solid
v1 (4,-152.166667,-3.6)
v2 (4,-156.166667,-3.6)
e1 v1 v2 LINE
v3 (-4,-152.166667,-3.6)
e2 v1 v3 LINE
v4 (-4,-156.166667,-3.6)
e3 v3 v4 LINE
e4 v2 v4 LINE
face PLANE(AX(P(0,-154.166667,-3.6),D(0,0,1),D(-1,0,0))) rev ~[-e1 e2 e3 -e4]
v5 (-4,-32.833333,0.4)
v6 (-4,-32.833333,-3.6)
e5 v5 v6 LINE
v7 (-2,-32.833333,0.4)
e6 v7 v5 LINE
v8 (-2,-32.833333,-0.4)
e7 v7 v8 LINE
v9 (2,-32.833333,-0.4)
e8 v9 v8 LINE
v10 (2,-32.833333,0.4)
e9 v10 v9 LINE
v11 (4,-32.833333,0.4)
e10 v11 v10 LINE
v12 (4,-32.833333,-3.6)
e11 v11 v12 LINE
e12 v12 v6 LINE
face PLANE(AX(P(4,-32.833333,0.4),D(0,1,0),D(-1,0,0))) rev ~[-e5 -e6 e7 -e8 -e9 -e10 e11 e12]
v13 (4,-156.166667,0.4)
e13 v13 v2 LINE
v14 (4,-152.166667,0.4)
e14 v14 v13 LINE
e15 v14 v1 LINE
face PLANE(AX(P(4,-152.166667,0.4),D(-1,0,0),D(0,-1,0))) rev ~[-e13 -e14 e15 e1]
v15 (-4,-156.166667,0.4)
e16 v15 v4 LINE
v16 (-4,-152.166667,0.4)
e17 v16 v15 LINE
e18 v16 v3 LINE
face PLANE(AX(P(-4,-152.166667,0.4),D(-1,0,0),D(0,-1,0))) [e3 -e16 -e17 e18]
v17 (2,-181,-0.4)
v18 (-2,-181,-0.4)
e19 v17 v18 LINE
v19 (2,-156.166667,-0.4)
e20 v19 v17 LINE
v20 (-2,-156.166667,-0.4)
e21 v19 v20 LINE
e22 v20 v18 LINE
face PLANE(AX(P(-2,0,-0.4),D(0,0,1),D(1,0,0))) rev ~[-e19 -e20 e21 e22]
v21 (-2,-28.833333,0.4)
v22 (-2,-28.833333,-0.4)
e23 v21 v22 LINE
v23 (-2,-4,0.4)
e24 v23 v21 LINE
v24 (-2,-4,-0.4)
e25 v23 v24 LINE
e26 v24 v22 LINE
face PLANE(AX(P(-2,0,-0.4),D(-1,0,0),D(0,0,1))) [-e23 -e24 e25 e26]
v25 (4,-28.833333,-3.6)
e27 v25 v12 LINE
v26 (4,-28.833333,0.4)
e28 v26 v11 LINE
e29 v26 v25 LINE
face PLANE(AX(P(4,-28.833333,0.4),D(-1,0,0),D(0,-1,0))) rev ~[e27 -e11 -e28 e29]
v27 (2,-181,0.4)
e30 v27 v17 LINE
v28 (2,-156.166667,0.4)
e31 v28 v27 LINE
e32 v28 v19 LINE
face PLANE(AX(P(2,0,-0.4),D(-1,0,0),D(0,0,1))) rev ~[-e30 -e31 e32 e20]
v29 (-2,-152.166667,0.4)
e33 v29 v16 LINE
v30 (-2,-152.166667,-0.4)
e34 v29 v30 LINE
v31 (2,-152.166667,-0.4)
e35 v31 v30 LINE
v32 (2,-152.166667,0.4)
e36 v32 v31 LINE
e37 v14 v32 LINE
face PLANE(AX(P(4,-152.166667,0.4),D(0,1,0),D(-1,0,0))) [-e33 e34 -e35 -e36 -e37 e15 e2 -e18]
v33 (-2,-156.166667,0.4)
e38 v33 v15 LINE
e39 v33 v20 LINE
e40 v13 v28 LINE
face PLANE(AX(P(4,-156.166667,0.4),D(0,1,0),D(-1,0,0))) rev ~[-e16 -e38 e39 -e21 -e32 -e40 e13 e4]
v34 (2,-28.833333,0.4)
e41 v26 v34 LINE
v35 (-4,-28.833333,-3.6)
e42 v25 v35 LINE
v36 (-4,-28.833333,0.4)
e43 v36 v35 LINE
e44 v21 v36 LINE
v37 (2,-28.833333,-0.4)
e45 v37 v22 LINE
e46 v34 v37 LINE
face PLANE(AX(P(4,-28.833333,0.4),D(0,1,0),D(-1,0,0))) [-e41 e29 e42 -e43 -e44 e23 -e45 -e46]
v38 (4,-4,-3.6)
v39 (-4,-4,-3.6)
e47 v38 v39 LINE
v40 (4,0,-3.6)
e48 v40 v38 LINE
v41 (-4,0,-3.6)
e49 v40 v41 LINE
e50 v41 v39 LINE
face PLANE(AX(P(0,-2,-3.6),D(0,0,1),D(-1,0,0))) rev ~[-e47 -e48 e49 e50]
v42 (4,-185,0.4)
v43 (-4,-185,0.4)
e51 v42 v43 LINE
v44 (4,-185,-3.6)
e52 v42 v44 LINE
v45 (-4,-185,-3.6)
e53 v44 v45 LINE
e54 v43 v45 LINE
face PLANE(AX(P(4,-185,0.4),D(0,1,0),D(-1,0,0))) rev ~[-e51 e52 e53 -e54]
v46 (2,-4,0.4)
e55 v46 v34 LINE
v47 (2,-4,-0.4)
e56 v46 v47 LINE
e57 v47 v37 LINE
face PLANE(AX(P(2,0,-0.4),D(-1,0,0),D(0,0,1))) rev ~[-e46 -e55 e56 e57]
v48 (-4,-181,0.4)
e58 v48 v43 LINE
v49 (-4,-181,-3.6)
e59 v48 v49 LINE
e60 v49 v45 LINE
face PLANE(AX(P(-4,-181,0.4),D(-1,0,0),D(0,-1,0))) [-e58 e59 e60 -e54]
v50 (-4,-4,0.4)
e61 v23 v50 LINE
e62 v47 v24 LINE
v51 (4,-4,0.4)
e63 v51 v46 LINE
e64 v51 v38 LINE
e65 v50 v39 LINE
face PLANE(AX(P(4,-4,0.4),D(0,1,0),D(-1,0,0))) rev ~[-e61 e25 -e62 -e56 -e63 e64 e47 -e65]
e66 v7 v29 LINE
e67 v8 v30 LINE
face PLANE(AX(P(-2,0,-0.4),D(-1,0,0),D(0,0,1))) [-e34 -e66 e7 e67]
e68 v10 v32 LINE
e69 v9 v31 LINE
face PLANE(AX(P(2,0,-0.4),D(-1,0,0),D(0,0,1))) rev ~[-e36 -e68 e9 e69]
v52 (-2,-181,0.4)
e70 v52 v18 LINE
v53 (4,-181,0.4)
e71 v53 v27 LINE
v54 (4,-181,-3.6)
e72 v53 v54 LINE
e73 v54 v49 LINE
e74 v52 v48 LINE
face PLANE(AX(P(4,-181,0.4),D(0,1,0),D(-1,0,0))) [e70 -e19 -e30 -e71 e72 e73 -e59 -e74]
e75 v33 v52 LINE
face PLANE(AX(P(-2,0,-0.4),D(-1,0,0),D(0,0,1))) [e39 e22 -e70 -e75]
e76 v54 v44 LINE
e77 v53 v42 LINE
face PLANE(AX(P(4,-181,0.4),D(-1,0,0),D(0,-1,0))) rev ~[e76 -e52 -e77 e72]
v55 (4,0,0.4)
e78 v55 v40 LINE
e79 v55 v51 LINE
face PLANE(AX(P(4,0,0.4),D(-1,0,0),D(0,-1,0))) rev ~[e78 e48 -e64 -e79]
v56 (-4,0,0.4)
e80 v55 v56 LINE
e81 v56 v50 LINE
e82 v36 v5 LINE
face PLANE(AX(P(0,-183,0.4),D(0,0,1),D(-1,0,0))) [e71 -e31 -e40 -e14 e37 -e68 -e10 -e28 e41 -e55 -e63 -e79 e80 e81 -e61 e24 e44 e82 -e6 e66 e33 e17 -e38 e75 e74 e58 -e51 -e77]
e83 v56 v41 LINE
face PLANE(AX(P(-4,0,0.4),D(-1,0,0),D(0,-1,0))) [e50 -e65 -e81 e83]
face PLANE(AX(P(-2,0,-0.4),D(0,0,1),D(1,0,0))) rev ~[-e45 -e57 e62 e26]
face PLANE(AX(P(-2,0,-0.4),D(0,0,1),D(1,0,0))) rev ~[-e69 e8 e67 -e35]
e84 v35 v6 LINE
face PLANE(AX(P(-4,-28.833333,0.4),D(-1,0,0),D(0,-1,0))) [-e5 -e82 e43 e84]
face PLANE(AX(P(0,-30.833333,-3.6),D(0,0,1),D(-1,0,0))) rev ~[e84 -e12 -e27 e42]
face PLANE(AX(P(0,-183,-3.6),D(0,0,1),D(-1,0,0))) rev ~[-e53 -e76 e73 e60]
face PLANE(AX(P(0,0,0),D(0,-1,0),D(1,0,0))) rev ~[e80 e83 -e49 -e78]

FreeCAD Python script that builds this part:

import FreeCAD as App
import Part
import Sketcher

V = App.Vector
Q = App.Units.Quantity


def add_polygon(sketch, points):
    """Adds a closed chain of lines whose ends are joined by coincident constraints."""
    first, n = sketch.GeometryCount, len(points)
    for a, b in zip(points, points[1:] + points[:1]):
        sketch.addGeometry(Part.LineSegment(App.Vector(*a, 0), App.Vector(*b, 0)), False)
    for i in range(n):
        sketch.addConstraint(Sketcher.Constraint("Coincident", first + i, 2, first + (i + 1) % n, 1))

doc = App.newDocument("Part")
body = doc.addObject("PartDesign::Body", "Body")

sketch1 = body.newObject("Sketcher::SketchObject", "Sketch")
sketch1.AttachmentSupport = (doc.getObject("XZ_Plane"), [""])
sketch1.MapMode = "FlatFace"
add_polygon(sketch1, [(-2, 0.4), (-2, -0.4), (2, -0.4), (2, 0.4)])
sketch1.addConstraint(Sketcher.Constraint("Vertical", 0))
sketch1.addConstraint(Sketcher.Constraint("Horizontal", 1))
sketch1.addConstraint(Sketcher.Constraint("Vertical", 2))
sketch1.addConstraint(Sketcher.Constraint("Horizontal", 3))
sketch1.addConstraint(Sketcher.Constraint("Symmetric", 0, 2, 2, 2, -1, 1))
sketch1.addConstraint(Sketcher.Constraint("DistanceX", 1, 1, 1, 2, Q("4 mm")))
sketch1.addConstraint(Sketcher.Constraint("DistanceY", 0, 2, 0, 1, Q("0.8 mm")))
pad1 = body.newObject("PartDesign::Pad", "Pad")
pad1.Profile = sketch1
pad1.Length = 185

sketch2 = body.newObject("Sketcher::SketchObject", "Sketch001")
sketch2.AttachmentSupport = (doc.getObject("XY_Plane"), [""])
sketch2.MapMode = "FlatFace"
sketch2.AttachmentOffset = App.Placement(V(0, 0, 0.4), App.Rotation())
add_polygon(sketch2, [(4, -185), (4, -181), (-4, -181), (-4, -185)])
add_polygon(sketch2, [(4, -156.2), (4, -152.2), (-4, -152.2), (-4, -156.2)])
add_polygon(sketch2, [(4, -32.8), (4, -28.8), (-4, -28.8), (-4, -32.8)])
add_polygon(sketch2, [(4, -4), (4, 0), (-4, 0), (-4, -4)])
sketch2.addConstraint(Sketcher.Constraint("Vertical", 0))
sketch2.addConstraint(Sketcher.Constraint("Horizontal", 1))
sketch2.addConstraint(Sketcher.Constraint("Vertical", 2))
sketch2.addConstraint(Sketcher.Constraint("Horizontal", 3))
sketch2.addConstraint(Sketcher.Constraint("Vertical", 4))
sketch2.addConstraint(Sketcher.Constraint("Horizontal", 5))
sketch2.addConstraint(Sketcher.Constraint("Vertical", 6))
sketch2.addConstraint(Sketcher.Constraint("Horizontal", 7))
sketch2.addConstraint(Sketcher.Constraint("Vertical", 8))
sketch2.addConstraint(Sketcher.Constraint("Horizontal", 9))
sketch2.addConstraint(Sketcher.Constraint("Vertical", 10))
sketch2.addConstraint(Sketcher.Constraint("Horizontal", 11))
sketch2.addConstraint(Sketcher.Constraint("Vertical", 12))
sketch2.addConstraint(Sketcher.Constraint("Horizontal", 13))
sketch2.addConstraint(Sketcher.Constraint("Vertical", 14))
sketch2.addConstraint(Sketcher.Constraint("Horizontal", 15))
sketch2.addConstraint(Sketcher.Constraint("Symmetric", 12, 2, 13, 2, -1, 1))
sketch2.addConstraint(Sketcher.Constraint("Vertical", 3, 2, 4, 2))
sketch2.addConstraint(Sketcher.Constraint("Vertical", 2, 2, 5, 2))
sketch2.addConstraint(Sketcher.Constraint("Vertical", 7, 2, 8, 2))
sketch2.addConstraint(Sketcher.Constraint("Vertical", 6, 2, 9, 2))
sketch2.addConstraint(Sketcher.Constraint("Vertical", 11, 2, 12, 2))
sketch2.addConstraint(Sketcher.Constraint("Vertical", 10, 2, 13, 2))
sketch2.addConstraint(Sketcher.Constraint("Equal", 2, 4))
sketch2.addConstraint(Sketcher.Constraint("Equal", 6, 8))
sketch2.addConstraint(Sketcher.Constraint("Equal", 10, 12))
sketch2.addConstraint(Sketcher.Constraint("DistanceX", 1, 2, 1, 1, Q("8 mm")))
sketch2.addConstraint(Sketcher.Constraint("DistanceY", 0, 1, 0, 2, Q("4 mm")))
sketch2.addConstraint(Sketcher.Constraint("DistanceY", 0, 2, -1, 1, Q("181 mm")))
sketch2.addConstraint(Sketcher.Constraint("DistanceY", 4, 2, -1, 1, Q("152.166667 mm")))
sketch2.addConstraint(Sketcher.Constraint("DistanceY", 8, 2, -1, 1, Q("28.833333 mm")))
pad2 = body.newObject("PartDesign::Pad", "Pad001")
pad2.Profile = sketch2
pad2.Length = 4
pad2.Reversed = True

doc.recompute()
